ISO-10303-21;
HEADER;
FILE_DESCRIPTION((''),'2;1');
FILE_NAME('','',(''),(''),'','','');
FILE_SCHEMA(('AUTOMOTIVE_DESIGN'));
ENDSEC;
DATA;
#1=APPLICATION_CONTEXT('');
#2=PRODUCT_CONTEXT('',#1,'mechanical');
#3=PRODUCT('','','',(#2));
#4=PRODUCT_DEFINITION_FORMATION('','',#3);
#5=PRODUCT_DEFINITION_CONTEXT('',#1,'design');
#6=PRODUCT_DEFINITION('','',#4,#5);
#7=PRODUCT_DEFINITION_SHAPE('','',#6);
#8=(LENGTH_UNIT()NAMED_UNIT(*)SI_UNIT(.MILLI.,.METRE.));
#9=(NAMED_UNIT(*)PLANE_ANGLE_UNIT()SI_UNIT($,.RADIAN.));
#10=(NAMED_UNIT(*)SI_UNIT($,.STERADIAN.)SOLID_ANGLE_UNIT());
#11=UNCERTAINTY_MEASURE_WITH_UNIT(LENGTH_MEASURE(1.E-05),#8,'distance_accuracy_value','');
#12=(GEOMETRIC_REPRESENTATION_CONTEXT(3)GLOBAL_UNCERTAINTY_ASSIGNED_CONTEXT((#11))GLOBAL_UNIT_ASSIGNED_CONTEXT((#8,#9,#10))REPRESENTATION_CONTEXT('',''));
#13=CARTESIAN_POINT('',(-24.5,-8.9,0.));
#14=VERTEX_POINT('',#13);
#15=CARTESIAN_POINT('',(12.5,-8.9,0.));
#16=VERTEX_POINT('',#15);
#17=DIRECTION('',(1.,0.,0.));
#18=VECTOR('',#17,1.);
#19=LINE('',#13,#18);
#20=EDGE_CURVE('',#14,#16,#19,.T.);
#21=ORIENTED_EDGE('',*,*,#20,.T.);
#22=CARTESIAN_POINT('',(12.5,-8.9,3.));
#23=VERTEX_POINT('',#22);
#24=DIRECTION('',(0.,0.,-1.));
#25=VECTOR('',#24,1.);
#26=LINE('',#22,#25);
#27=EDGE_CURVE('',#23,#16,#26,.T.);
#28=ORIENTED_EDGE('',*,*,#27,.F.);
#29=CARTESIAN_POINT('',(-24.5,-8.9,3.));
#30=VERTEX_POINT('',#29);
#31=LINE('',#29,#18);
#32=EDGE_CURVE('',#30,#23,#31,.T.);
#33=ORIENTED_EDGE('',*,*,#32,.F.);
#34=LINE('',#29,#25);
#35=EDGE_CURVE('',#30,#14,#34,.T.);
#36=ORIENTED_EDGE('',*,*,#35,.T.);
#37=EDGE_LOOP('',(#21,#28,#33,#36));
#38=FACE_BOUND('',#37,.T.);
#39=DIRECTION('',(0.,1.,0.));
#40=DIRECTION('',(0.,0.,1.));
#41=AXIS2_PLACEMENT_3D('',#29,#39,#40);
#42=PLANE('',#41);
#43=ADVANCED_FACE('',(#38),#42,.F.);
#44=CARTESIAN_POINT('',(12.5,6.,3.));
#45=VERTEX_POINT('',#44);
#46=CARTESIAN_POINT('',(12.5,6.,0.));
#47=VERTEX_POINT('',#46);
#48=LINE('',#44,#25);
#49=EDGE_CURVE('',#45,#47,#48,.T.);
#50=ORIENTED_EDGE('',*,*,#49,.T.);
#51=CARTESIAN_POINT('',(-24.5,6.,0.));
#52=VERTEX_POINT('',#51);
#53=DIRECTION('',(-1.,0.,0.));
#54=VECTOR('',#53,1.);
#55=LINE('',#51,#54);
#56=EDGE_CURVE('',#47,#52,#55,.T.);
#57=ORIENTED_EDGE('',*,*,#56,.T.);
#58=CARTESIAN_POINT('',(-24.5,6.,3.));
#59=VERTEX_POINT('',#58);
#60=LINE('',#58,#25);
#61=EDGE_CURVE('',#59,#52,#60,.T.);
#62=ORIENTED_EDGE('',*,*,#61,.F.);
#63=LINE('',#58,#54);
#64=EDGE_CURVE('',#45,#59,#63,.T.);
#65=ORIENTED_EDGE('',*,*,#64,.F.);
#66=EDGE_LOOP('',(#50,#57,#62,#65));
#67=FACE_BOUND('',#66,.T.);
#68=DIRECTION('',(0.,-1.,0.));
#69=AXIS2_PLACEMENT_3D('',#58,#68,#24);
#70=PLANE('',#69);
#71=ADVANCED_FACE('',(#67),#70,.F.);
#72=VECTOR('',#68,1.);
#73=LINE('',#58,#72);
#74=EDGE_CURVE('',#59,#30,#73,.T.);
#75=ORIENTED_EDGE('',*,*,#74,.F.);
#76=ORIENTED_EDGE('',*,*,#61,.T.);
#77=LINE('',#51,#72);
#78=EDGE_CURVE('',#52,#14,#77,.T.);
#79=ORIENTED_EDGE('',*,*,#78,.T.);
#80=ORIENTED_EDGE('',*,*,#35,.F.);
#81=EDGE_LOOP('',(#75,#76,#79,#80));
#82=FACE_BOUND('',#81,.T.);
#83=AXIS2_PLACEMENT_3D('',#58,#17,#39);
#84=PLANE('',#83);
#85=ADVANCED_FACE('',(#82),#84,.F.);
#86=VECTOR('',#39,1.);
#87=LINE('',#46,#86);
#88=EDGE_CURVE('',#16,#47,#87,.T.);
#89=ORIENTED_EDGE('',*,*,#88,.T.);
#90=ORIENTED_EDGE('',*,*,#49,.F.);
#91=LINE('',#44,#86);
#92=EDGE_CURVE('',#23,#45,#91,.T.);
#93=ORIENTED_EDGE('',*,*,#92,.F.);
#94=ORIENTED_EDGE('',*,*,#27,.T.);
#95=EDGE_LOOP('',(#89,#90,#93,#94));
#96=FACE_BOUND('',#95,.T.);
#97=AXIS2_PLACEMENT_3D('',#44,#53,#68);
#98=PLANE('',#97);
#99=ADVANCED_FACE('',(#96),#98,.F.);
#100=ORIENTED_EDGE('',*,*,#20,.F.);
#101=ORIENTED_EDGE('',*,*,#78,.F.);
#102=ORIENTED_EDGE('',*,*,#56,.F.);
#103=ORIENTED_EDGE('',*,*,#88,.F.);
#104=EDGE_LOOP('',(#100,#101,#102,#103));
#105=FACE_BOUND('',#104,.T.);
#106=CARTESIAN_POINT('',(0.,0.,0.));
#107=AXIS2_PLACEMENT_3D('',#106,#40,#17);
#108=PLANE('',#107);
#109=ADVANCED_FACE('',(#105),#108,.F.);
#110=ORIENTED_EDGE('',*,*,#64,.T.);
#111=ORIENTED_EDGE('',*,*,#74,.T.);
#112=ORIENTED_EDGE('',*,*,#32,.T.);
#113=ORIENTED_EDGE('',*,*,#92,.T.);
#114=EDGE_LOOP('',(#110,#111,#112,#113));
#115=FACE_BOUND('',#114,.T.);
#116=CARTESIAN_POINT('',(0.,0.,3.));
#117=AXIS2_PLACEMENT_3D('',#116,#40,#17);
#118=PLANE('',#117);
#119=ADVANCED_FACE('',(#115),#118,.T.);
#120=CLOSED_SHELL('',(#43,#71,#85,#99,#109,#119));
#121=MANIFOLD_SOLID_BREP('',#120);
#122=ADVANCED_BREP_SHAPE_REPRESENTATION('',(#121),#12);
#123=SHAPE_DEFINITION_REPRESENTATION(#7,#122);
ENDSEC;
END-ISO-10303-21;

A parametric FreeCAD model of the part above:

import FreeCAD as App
import Part
import Sketcher

V = App.Vector


def add_polygon(sketch, points):
    """Adds a closed chain of lines whose ends are joined by coincident constraints."""
    first, n = sketch.GeometryCount, len(points)
    for a, b in zip(points, points[1:] + points[:1]):
        sketch.addGeometry(Part.LineSegment(App.Vector(*a, 0), App.Vector(*b, 0)), False)
    for i in range(n):
        sketch.addConstraint(Sketcher.Constraint("Coincident", first + i, 2, first + (i + 1) % n, 1))

doc = App.newDocument("Part")
body = doc.addObject("PartDesign::Body", "Body")

sketch1 = doc.addObject("Sketcher::SketchObject", "Sketch")
body.addObject(sketch1)
sketch1.AttachmentSupport = (doc.XY_Plane, [""])
sketch1.MapMode = "FlatFace"
add_polygon(sketch1, [(-24.5, 6), (-24.5, -8.9), (12.5, -8.9), (12.5, 6)])
sketch1.addConstraint([
    Sketcher.Constraint("Vertical", 0),
    Sketcher.Constraint("Horizontal", 1),
    Sketcher.Constraint("Vertical", 2),
    Sketcher.Constraint("Horizontal", 3),
    Sketcher.Constraint("DistanceX", 1, 1, 1, 2, 37.0),
    Sketcher.Constraint("DistanceY", 0, 2, 0, 1, 14.9),
    Sketcher.Constraint("DistanceY", -1, 1, 2, 2, 6.0),
    Sketcher.Constraint("DistanceX", 0, 2, -1, 1, 24.5),
])
pad1 = doc.addObject("PartDesign::Pad", "Pad")
body.addObject(pad1)
pad1.Profile = sketch1
pad1.Length = 3

doc.recompute()
